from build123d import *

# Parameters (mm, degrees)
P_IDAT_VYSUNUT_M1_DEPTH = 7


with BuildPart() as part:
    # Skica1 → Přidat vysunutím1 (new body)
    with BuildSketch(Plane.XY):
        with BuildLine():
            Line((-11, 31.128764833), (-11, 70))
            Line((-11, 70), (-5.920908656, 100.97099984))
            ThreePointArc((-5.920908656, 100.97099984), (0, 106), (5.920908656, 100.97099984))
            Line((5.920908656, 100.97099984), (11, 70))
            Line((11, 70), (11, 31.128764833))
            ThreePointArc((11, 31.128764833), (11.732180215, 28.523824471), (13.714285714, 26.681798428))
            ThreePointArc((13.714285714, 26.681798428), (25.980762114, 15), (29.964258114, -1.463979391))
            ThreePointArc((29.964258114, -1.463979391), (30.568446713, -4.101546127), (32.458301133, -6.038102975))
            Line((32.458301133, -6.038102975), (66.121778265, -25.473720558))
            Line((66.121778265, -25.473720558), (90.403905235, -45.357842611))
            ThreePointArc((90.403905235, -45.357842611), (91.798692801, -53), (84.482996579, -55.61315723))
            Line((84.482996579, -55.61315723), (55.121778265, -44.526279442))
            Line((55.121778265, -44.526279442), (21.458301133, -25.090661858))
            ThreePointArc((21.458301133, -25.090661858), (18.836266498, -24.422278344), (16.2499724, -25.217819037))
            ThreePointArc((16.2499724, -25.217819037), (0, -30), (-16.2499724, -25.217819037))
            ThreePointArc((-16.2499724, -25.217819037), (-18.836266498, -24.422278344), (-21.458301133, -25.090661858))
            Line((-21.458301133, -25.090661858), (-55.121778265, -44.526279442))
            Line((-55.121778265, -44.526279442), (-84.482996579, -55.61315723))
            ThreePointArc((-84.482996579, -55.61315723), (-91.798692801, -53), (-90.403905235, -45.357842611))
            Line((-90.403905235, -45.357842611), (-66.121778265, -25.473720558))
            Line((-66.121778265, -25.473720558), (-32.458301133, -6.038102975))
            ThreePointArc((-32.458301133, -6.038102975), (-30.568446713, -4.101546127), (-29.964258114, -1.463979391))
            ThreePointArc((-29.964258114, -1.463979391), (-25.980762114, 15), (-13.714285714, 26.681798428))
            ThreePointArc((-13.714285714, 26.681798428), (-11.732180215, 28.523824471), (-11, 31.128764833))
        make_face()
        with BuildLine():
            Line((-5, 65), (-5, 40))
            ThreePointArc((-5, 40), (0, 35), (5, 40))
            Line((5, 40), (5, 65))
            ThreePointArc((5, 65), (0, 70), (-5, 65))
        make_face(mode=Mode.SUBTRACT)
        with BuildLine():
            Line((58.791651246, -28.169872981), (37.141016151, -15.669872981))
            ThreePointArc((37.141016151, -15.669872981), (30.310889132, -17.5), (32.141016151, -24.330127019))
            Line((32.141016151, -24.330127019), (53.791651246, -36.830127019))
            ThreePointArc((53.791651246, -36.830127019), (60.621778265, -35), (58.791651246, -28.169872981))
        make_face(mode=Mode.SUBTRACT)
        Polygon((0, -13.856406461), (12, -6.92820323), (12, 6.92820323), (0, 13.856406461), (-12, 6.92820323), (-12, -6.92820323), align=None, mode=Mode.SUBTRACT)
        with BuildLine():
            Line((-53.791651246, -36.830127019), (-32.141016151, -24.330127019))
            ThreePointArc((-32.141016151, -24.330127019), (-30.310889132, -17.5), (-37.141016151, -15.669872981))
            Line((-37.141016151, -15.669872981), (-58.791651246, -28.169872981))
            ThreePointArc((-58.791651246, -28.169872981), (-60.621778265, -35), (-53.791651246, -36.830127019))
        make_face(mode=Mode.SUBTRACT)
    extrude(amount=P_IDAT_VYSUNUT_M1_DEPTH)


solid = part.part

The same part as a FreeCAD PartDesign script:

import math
import FreeCAD as App
import Part
import Sketcher

V = App.Vector
Q = App.Units.Quantity


def add_polygon(sketch, points):
    """Adds a closed chain of lines whose ends are joined by coincident constraints."""
    first, n = sketch.GeometryCount, len(points)
    for a, b in zip(points, points[1:] + points[:1]):
        sketch.addGeometry(Part.LineSegment(App.Vector(*a, 0), App.Vector(*b, 0)), False)
    for i in range(n):
        sketch.addConstraint(Sketcher.Constraint("Coincident", first + i, 2, first + (i + 1) % n, 1))

doc = App.newDocument("Part")
body = doc.addObject("PartDesign::Body", "Body")

# Sketch on XY plane
sketch1 = body.newObject("Sketcher::SketchObject", "Sketch")
sketch1.AttachmentSupport = (doc.getObject("XY_Plane"), [""])
sketch1.MapMode = "FlatFace"
sketch1.addGeometry(Part.LineSegment(V(-11, 70, 0), V(-11, 31.1, 0)), False)  # 0
sketch1.addGeometry(Part.ArcOfCircle(Part.Circle(V(-16, 31.1, 0), V(0, 0, 1), 5), math.radians(-63), math.radians(0)), False)  # 1
sketch1.addGeometry(Part.ArcOfCircle(Part.Circle(V(0, 0, 0), V(0, 0, 1), 30), math.radians(117), math.radians(183)), False)  # 2
sketch1.addGeometry(Part.ArcOfCircle(Part.Circle(V(-35, -1.7, 0), V(0, 0, 1), 5), math.radians(-60), math.radians(3)), False)  # 3
sketch1.addGeometry(Part.LineSegment(V(-32.5, -6, 0), V(-66.1, -25.5, 0)), False)  # 4
sketch1.addGeometry(Part.LineSegment(V(-66.1, -25.5, 0), V(-90.4, -45.4, 0)), False)  # 5
sketch1.addGeometry(Part.ArcOfCircle(Part.Circle(V(-86.6, -50, 0), V(0, 0, 1), 6), math.radians(129), math.radians(291)), False)  # 6
sketch1.addGeometry(Part.LineSegment(V(-84.5, -55.6, 0), V(-55.1, -44.5, 0)), False)  # 7
sketch1.addGeometry(Part.LineSegment(V(-55.1, -44.5, 0), V(-21.5, -25.1, 0)), False)  # 8
sketch1.addGeometry(Part.ArcOfCircle(Part.Circle(V(-19, -29.4, 0), V(0, 0, 1), 5), math.radians(57), math.radians(120)), False)  # 9
sketch1.addGeometry(Part.ArcOfCircle(Part.Circle(V(0, 0, 0), V(0, 0, 1), 30), math.radians(-123), math.radians(-57)), False)  # 10
sketch1.addGeometry(Part.ArcOfCircle(Part.Circle(V(19, -29.4, 0), V(0, 0, 1), 5), math.radians(60), math.radians(123)), False)  # 11
sketch1.addGeometry(Part.LineSegment(V(21.5, -25.1, 0), V(55.1, -44.5, 0)), False)  # 12
sketch1.addGeometry(Part.LineSegment(V(55.1, -44.5, 0), V(84.5, -55.6, 0)), False)  # 13
sketch1.addGeometry(Part.ArcOfCircle(Part.Circle(V(86.6, -50, 0), V(0, 0, 1), 6), math.radians(-111), math.radians(51)), False)  # 14
sketch1.addGeometry(Part.LineSegment(V(90.4, -45.4, 0), V(66.1, -25.5, 0)), False)  # 15
sketch1.addGeometry(Part.LineSegment(V(66.1, -25.5, 0), V(32.5, -6, 0)), False)  # 16
sketch1.addGeometry(Part.ArcOfCircle(Part.Circle(V(35, -1.7, 0), V(0, 0, 1), 5), math.radians(177), math.radians(240)), False)  # 17
sketch1.addGeometry(Part.ArcOfCircle(Part.Circle(V(0, 0, 0), V(0, 0, 1), 30), math.radians(-3), math.radians(63)), False)  # 18
sketch1.addGeometry(Part.ArcOfCircle(Part.Circle(V(16, 31.1, 0), V(0, 0, 1), 5), math.radians(180), math.radians(243)), False)  # 19
sketch1.addGeometry(Part.LineSegment(V(11, 31.1, 0), V(11, 70, 0)), False)  # 20
sketch1.addGeometry(Part.LineSegment(V(11, 70, 0), V(5.9, 101, 0)), False)  # 21
sketch1.addGeometry(Part.ArcOfCircle(Part.Circle(V(0, 100, 0), V(0, 0, 1), 6), math.radians(9), math.radians(171)), False)  # 22
sketch1.addGeometry(Part.LineSegment(V(-5.9, 101, 0), V(-11, 70, 0)), False)  # 23
sketch1.addGeometry(Part.ArcOfCircle(Part.Circle(V(56.3, -32.5, 0), V(0, 0, 1), 5), math.radians(-120), math.radians(60)), False)  # 24
sketch1.addGeometry(Part.LineSegment(V(53.8, -36.8, 0), V(32.1, -24.3, 0)), False)  # 25
sketch1.addGeometry(Part.ArcOfCircle(Part.Circle(V(34.6, -20, 0), V(0, 0, 1), 5), math.radians(60), math.radians(240)), False)  # 26
sketch1.addGeometry(Part.LineSegment(V(37.1, -15.7, 0), V(58.8, -28.2, 0)), False)  # 27
sketch1.addGeometry(Part.ArcOfCircle(Part.Circle(V(-56.3, -32.5, 0), V(0, 0, 1), 5), math.radians(120), math.radians(300)), False)  # 28
sketch1.addGeometry(Part.LineSegment(V(-58.8, -28.2, 0), V(-37.1, -15.7, 0)), False)  # 29
sketch1.addGeometry(Part.ArcOfCircle(Part.Circle(V(-34.6, -20, 0), V(0, 0, 1), 5), math.radians(-60), math.radians(120)), False)  # 30
sketch1.addGeometry(Part.LineSegment(V(-32.1, -24.3, 0), V(-53.8, -36.8, 0)), False)  # 31
add_polygon(sketch1, [(0, -13.9), (-12, -6.9), (-12, 6.9), (0, 13.9), (12, 6.9), (12, -6.9)])  # lines 32-37
sketch1.addGeometry(Part.ArcOfCircle(Part.Circle(V(0, 65, 0), V(0, 0, 1), 5), math.radians(0), math.radians(180)), False)  # 38
sketch1.addGeometry(Part.LineSegment(V(5, 65, 0), V(5, 40, 0)), False)  # 39
sketch1.addGeometry(Part.ArcOfCircle(Part.Circle(V(0, 40, 0), V(0, 0, 1), 5), math.radians(180), math.radians(360)), False)  # 40
sketch1.addGeometry(Part.LineSegment(V(-5, 40, 0), V(-5, 65, 0)), False)  # 41
sketch1.addConstraint(Sketcher.Constraint("Tangent", 0, 2, 1, 2))
sketch1.addConstraint(Sketcher.Constraint("Tangent", 1, 1, 2, 1))
sketch1.addConstraint(Sketcher.Constraint("Tangent", 2, 2, 3, 2))
sketch1.addConstraint(Sketcher.Constraint("Tangent", 3, 1, 4, 1))
sketch1.addConstraint(Sketcher.Constraint("Coincident", 4, 2, 5, 1))
sketch1.addConstraint(Sketcher.Constraint("Tangent", 5, 2, 6, 1))
sketch1.addConstraint(Sketcher.Constraint("Tangent", 6, 2, 7, 1))
sketch1.addConstraint(Sketcher.Constraint("Coincident", 7, 2, 8, 1))
sketch1.addConstraint(Sketcher.Constraint("Tangent", 8, 2, 9, 2))
sketch1.addConstraint(Sketcher.Constraint("Tangent", 9, 1, 10, 1))
sketch1.addConstraint(Sketcher.Constraint("Tangent", 10, 2, 11, 2))
sketch1.addConstraint(Sketcher.Constraint("Tangent", 11, 1, 12, 1))
sketch1.addConstraint(Sketcher.Constraint("Coincident", 12, 2, 13, 1))
sketch1.addConstraint(Sketcher.Constraint("Tangent", 13, 2, 14, 1))
sketch1.addConstraint(Sketcher.Constraint("Tangent", 14, 2, 15, 1))
sketch1.addConstraint(Sketcher.Constraint("Coincident", 15, 2, 16, 1))
sketch1.addConstraint(Sketcher.Constraint("Tangent", 16, 2, 17, 2))
sketch1.addConstraint(Sketcher.Constraint("Tangent", 17, 1, 18, 1))
sketch1.addConstraint(Sketcher.Constraint("Tangent", 18, 2, 19, 2))
sketch1.addConstraint(Sketcher.Constraint("Tangent", 19, 1, 20, 1))
sketch1.addConstraint(Sketcher.Constraint("Coincident", 20, 2, 21, 1))
sketch1.addConstraint(Sketcher.Constraint("Tangent", 21, 2, 22, 1))
sketch1.addConstraint(Sketcher.Constraint("Tangent", 22, 2, 23, 1))
sketch1.addConstraint(Sketcher.Constraint("Coincident", 23, 2, 0, 1))
sketch1.addConstraint(Sketcher.Constraint("Tangent", 24, 1, 25, 1))
sketch1.addConstraint(Sketcher.Constraint("Tangent", 25, 2, 26, 2))
sketch1.addConstraint(Sketcher.Constraint("Tangent", 26, 1, 27, 1))
sketch1.addConstraint(Sketcher.Constraint("Tangent", 27, 2, 24, 2))
sketch1.addConstraint(Sketcher.Constraint("Tangent", 28, 1, 29, 1))
sketch1.addConstraint(Sketcher.Constraint("Tangent", 29, 2, 30, 2))
sketch1.addConstraint(Sketcher.Constraint("Tangent", 30, 1, 31, 1))
sketch1.addConstraint(Sketcher.Constraint("Tangent", 31, 2, 28, 2))
sketch1.addConstraint(Sketcher.Constraint("Tangent", 38, 1, 39, 1))
sketch1.addConstraint(Sketcher.Constraint("Tangent", 39, 2, 40, 2))
sketch1.addConstraint(Sketcher.Constraint("Tangent", 40, 1, 41, 1))
sketch1.addConstraint(Sketcher.Constraint("Tangent", 41, 2, 38, 2))
sketch1.addConstraint(Sketcher.Constraint("Vertical", 0))
sketch1.addConstraint(Sketcher.Constraint("Vertical", 20))
sketch1.addConstraint(Sketcher.Constraint("Vertical", 33))
sketch1.addConstraint(Sketcher.Constraint("Vertical", 36))
sketch1.addConstraint(Sketcher.Constraint("Vertical", 39))
sketch1.addConstraint(Sketcher.Constraint("Vertical", 41))
sketch1.addConstraint(Sketcher.Constraint("Coincident", 2, 3, -1, 1))
sketch1.addConstraint(Sketcher.Constraint("Coincident", 10, 3, -1, 1))
sketch1.addConstraint(Sketcher.Constraint("Coincident", 18, 3, -1, 1))
sketch1.addConstraint(Sketcher.Constraint("Equal", 1, 3))
sketch1.addConstraint(Sketcher.Constraint("Equal", 3, 9))
sketch1.addConstraint(Sketcher.Constraint("Equal", 2, 10))
sketch1.addConstraint(Sketcher.Constraint("Equal", 9, 11))
sketch1.addConstraint(Sketcher.Constraint("Equal", 6, 14))
sketch1.addConstraint(Sketcher.Constraint("Equal", 11, 17))
sketch1.addConstraint(Sketcher.Constraint("Equal", 10, 18))
sketch1.addConstraint(Sketcher.Constraint("Equal", 17, 19))
sketch1.addConstraint(Sketcher.Constraint("Equal", 14, 22))
sketch1.addConstraint(Sketcher.Constraint("Equal", 19, 24))
sketch1.addConstraint(Sketcher.Constraint("Equal", 24, 26))
sketch1.addConstraint(Sketcher.Constraint("Equal", 26, 28))
sketch1.addConstraint(Sketcher.Constraint("Equal", 28, 30))
sketch1.addConstraint(Sketcher.Constraint("Equal", 30, 38))
sketch1.addConstraint(Sketcher.Constraint("Symmetric", 32, 2, 35, 2, -1, 1))
sketch1.addConstraint(Sketcher.Constraint("Symmetric", 34, 2, 37, 2, -1, 1))
sketch1.addConstraint(Sketcher.Constraint("Symmetric", 6, 3, 14, 3, -2))
sketch1.addConstraint(Sketcher.Constraint("Symmetric", 24, 3, 28, 3, -2))
sketch1.addConstraint(Sketcher.Constraint("Symmetric", 26, 3, 30, 3, -2))
sketch1.addConstraint(Sketcher.Constraint("Symmetric", 8, 2, 11, 1, -2))
sketch1.addConstraint(Sketcher.Constraint("Symmetric", 4, 2, 15, 2, -2))
sketch1.addConstraint(Sketcher.Constraint("Symmetric", 21, 2, 22, 2, -2))
sketch1.addConstraint(Sketcher.Constraint("PointOnObject", 38, 3, -2))
sketch1.addConstraint(Sketcher.Constraint("PointOnObject", 34, 2, -2))
sketch1.addConstraint(Sketcher.Constraint("Parallel", 4, 8))
sketch1.addConstraint(Sketcher.Constraint("Parallel", 12, 16))
sketch1.addConstraint(Sketcher.Constraint("Parallel", 16, 25))
sketch1.addConstraint(Sketcher.Constraint("Parallel", 27, 32))
sketch1.addConstraint(Sketcher.Constraint("Parallel", 31, 34))
sketch1.addConstraint(Sketcher.Constraint("Parallel", 34, 37))
sketch1.addConstraint(Sketcher.Constraint("Horizontal", 1, 3, 19, 3))
sketch1.addConstraint(Sketcher.Constraint("Horizontal", 7, 2, 12, 2))
sketch1.addConstraint(Sketcher.Constraint("Equal", 5, 7))
sketch1.addConstraint(Sketcher.Constraint("Equal", 4, 8))
sketch1.addConstraint(Sketcher.Constraint("Equal", 15, 21))
sketch1.addConstraint(Sketcher.Constraint("Radius", 1, 5.0))
sketch1.addConstraint(Sketcher.Constraint("Radius", 2, 30.0))
sketch1.addConstraint(Sketcher.Constraint("Radius", 6, 6.0))
sketch1.addConstraint(Sketcher.Constraint("DistanceY", 39, 2, 39, 1, 25.0))
sketch1.addConstraint(Sketcher.Constraint("Angle", 4, Q("-150 deg")))
sketch1.addConstraint(Sketcher.Constraint("Distance", 25, 25.0))
sketch1.addConstraint(Sketcher.Constraint("DistanceX", 1, 3, -1, 1, 16.0))
sketch1.addConstraint(Sketcher.Constraint("DistanceY", 6, 3, -1, 1, 50.0))
sketch1.addConstraint(Sketcher.Constraint("DistanceY", -1, 1, 22, 3, 100.0))
sketch1.addConstraint(Sketcher.Constraint("DistanceY", 26, 3, -1, 1, 20.0))
sketch1.addConstraint(Sketcher.Constraint("DistanceY", -1, 1, 38, 3, 65.0))
sketch1.addConstraint(Sketcher.Constraint("DistanceY", -1, 1, 20, 2, 70.0))
sketch1.addConstraint(Sketcher.Constraint("DistanceX", 32, 2, -1, 1, 12.0))
sketch1.addConstraint(Sketcher.Constraint("DistanceX", 3, 3, 9, 3, 16.0))
sketch1.addConstraint(Sketcher.Constraint("DistanceX", 3, 3, -1, 1, 34.958301))
sketch1.addConstraint(Sketcher.Constraint("DistanceY", 33, 1, 33, 2, 13.856406))
sketch1.addConstraint(Sketcher.Constraint("DistanceX", -1, 1, 24, 3, 56.291651))
pad1 = body.newObject("PartDesign::Pad", "Pad")
pad1.Profile = sketch1
pad1.Length = 7

doc.recompute()
